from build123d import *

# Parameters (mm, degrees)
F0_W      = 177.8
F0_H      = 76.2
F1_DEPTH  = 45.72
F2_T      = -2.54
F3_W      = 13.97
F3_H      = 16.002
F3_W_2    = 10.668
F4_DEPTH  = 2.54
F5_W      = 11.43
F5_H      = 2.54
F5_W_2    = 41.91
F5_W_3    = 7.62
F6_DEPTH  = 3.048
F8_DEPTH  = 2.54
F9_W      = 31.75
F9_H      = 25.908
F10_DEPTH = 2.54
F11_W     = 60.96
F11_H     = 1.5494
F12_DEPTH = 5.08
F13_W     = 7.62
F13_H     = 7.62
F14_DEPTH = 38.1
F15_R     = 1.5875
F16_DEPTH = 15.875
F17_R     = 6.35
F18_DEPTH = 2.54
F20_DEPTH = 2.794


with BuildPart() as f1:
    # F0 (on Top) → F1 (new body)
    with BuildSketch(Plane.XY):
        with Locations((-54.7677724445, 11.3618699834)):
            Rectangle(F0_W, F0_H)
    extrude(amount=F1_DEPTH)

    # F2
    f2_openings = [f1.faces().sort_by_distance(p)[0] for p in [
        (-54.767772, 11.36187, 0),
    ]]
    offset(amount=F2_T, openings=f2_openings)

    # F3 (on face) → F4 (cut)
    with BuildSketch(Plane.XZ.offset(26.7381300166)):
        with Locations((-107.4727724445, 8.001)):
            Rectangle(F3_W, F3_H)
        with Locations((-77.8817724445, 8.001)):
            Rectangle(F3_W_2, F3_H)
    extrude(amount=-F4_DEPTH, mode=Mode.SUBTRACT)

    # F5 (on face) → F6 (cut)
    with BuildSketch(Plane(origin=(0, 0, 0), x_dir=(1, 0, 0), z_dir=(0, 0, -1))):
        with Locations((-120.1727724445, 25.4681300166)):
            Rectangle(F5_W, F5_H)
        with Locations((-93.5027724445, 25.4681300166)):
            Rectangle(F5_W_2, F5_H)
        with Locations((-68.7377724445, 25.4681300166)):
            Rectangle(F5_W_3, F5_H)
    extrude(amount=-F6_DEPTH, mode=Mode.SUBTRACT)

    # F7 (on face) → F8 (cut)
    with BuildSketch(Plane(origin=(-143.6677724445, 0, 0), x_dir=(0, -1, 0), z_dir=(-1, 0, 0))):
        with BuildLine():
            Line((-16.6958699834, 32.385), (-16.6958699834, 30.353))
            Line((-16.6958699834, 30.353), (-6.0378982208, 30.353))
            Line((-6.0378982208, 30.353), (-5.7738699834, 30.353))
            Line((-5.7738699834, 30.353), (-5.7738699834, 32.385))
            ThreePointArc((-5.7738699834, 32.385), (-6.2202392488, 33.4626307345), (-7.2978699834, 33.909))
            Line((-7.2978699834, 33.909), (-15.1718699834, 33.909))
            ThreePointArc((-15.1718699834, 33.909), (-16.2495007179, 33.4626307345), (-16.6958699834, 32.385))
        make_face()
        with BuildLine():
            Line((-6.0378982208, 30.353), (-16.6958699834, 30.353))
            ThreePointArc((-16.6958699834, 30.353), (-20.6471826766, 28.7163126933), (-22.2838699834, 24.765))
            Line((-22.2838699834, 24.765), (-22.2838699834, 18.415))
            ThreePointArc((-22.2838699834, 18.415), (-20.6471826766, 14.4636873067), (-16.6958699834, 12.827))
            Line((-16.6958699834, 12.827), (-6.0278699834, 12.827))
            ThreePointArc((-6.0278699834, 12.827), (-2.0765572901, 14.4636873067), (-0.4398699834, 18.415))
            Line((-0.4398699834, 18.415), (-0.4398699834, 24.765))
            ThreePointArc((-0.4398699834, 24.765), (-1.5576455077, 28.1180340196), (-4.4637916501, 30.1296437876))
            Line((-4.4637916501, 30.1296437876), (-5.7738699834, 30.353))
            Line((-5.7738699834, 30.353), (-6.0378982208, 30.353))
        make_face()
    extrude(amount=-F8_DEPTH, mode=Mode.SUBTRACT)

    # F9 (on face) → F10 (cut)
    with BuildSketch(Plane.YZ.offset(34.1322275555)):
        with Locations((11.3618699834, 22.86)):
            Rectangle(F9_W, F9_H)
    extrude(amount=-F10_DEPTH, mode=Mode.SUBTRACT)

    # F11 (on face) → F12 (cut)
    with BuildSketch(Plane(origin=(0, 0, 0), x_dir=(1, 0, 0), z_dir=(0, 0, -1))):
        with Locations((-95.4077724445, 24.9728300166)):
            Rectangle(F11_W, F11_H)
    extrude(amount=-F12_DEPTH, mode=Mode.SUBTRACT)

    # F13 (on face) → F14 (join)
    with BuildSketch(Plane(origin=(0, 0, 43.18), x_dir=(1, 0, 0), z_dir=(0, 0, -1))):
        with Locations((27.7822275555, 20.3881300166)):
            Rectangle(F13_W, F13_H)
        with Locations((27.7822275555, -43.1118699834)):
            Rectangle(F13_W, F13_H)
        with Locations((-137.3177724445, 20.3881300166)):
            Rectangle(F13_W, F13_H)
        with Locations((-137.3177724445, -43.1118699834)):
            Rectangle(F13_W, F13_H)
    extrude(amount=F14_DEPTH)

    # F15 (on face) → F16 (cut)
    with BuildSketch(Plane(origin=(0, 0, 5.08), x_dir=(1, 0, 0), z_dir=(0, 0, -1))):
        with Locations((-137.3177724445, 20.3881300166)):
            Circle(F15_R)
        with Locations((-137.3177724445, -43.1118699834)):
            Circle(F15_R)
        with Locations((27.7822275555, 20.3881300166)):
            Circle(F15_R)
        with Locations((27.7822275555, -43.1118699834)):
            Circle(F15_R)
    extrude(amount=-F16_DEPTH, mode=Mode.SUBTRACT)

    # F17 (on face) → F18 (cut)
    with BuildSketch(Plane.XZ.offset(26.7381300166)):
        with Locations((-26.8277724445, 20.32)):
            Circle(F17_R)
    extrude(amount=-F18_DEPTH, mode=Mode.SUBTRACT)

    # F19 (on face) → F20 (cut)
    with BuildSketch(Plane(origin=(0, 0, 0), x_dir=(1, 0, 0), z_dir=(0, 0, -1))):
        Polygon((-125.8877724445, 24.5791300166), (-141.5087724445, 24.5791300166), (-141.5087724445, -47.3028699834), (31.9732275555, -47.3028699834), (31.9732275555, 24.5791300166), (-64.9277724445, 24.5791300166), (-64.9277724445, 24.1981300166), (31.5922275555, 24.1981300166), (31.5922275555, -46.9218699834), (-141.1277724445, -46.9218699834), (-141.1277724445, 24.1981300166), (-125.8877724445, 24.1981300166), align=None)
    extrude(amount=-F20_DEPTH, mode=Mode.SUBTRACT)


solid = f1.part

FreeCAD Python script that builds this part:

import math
import FreeCAD as App
import Part
import Sketcher
Q = App.Units.Quantity


def faces_at(feature, points):
    """Names of the faces that lie closest to the given points."""
    faces = feature.Shape.Faces
    near = lambda p: min(range(len(faces)), key=lambda i: faces[i].distToShape(Part.Vertex(*p))[0])
    return sorted({f"Face{near(p) + 1}" for p in points})

doc = App.newDocument("Part")
params = doc.addObject("Spreadsheet::Sheet", "Params")
for row, (alias, value) in enumerate([
    ("sketch1_width", "7 in"),
    ("sketch1_height", "3 in"),
    ("pad1_length", "1.8 in"),
    ("thickness_wall", "0.1 in"),
    ("sketch2_width", "0.55 in"),
    ("sketch2_width2", "0.42 in"),
    ("sketch2_height", "0.63 in"),
    ("pocket1_length", "0.1 in"),
    ("sketch3_width", "2.4 in"),
    ("sketch3_height", "0.1 in"),
    ("pocket2_length", "0.12 in"),
    ("sketch4_radius", "0.22 in"),
    ("sketch4_radius2", "0.06 in"),
    ("sketch4_width", "0.42 in"),
    ("sketch4_width2", "0.31 in"),
    ("sketch4_height", "0.08 in"),
    ("pocket3_length", "0.1 in"),
    ("sketch5_width", "1.25 in"),
    ("sketch5_height", "1.02 in"),
    ("pocket4_length", "0.1 in"),
    ("sketch6_width", "2.4 in"),
    ("sketch6_height", "0.061 in"),
    ("pocket5_length", "0.2 in"),
    ("sketch7_width", "0.3 in"),
    ("pad2_length", "1.5 in"),
    ("sketch8_diameter", "0.125 in"),
    ("pocket6_length", "0.625 in"),
    ("sketch9_diameter", "0.5 in"),
    ("pocket7_length", "0.1 in"),
    ("sketch10_width", "3.8 in"),
    ("sketch10_width2", "6.8 in"),
    ("sketch10_width3", "0.6 in"),
    ("sketch10_height", "2.8 in"),
    ("sketch10_width4", "6.83 in"),
    ("pocket8_length", "0.11 in"),
], start=1):
    params.set(f"A{row}", alias)
    params.set(f"B{row}", "=" + value)
    params.setAlias(f"B{row}", alias)

body = doc.addObject("PartDesign::Body", "Body")

# Sketch on XY plane
sketch1 = body.newObject("Sketcher::SketchObject", "Sketch")
sketch1.AttachmentSupport = (doc.getObject("XY_Plane"), [""])
sketch1.MapMode = "FlatFace"
sketch1.addGeometry([
    Part.LineSegment(App.Vector(-143.667772, 49.46187, 0), App.Vector(-143.667772, -26.73813, 0)),
    Part.LineSegment(App.Vector(-143.667772, -26.73813, 0), App.Vector(34.132228, -26.73813, 0)),
    Part.LineSegment(App.Vector(34.132228, -26.73813, 0), App.Vector(34.132228, 49.46187, 0)),
    Part.LineSegment(App.Vector(34.132228, 49.46187, 0), App.Vector(-143.667772, 49.46187, 0)),
], False)
sketch1.addConstraint([
    Sketcher.Constraint("Coincident", 0, 2, 1, 1),
    Sketcher.Constraint("Coincident", 1, 2, 2, 1),
    Sketcher.Constraint("Coincident", 2, 2, 3, 1),
    Sketcher.Constraint("Coincident", 3, 2, 0, 1),
    Sketcher.Constraint("Vertical", 0),
    Sketcher.Constraint("Horizontal", 1),
    Sketcher.Constraint("Vertical", 2),
    Sketcher.Constraint("Horizontal", 3),
    Sketcher.Constraint("DistanceX", 1, 1, 1, 2, Q("7 in")),
    Sketcher.Constraint("DistanceY", 0, 2, 0, 1, Q("3 in")),
    Sketcher.Constraint("DistanceY", 0, 2, -1, 1, Q("26.73813 mm")),
    Sketcher.Constraint("DistanceX", 0, 2, -1, 1, Q("143.667772 mm")),
])
sketch1.setExpression("Constraints[8]", "Params.sketch1_width")
sketch1.setExpression("Constraints[9]", "Params.sketch1_height")
pad1 = body.newObject("PartDesign::Pad", "Pad")
pad1.Profile = sketch1
pad1.setExpression("Length", "Params.pad1_length")
doc.recompute()

thickness = body.newObject("PartDesign::Thickness", "Thickness")
thickness.Base = (pad1, faces_at(pad1, [(-54.768, 11.362, 0)]))
thickness.setExpression("Value", "Params.thickness_wall")
thickness.Reversed = True
thickness.Join = "Arc"

# Sketch on XZ plane
sketch2 = body.newObject("Sketcher::SketchObject", "Sketch001")
sketch2.AttachmentSupport = (doc.getObject("XZ_Plane"), [""])
sketch2.MapMode = "FlatFace"
sketch2.AttachmentOffset = App.Placement(App.Vector(0, 0, 26.73813), App.Rotation())
sketch2.addGeometry([
    Part.LineSegment(App.Vector(-114.457772, 16.002, 0), App.Vector(-114.457772, 0, 0)),  # 0
    Part.LineSegment(App.Vector(-114.457772, 0, 0), App.Vector(-100.487772, 0, 0)),  # 1
    Part.LineSegment(App.Vector(-100.487772, 0, 0), App.Vector(-100.487772, 16.002, 0)),  # 2
    Part.LineSegment(App.Vector(-100.487772, 16.002, 0), App.Vector(-114.457772, 16.002, 0)),  # 3
    Part.LineSegment(App.Vector(-83.215772, 16.002, 0), App.Vector(-83.215772, 0, 0)),  # 4
    Part.LineSegment(App.Vector(-83.215772, 0, 0), App.Vector(-72.547772, 0, 0)),  # 5
    Part.LineSegment(App.Vector(-72.547772, 0, 0), App.Vector(-72.547772, 16.002, 0)),  # 6
    Part.LineSegment(App.Vector(-72.547772, 16.002, 0), App.Vector(-83.215772, 16.002, 0)),  # 7
], False)
sketch2.addConstraint([
    Sketcher.Constraint("Coincident", 0, 2, 1, 1),
    Sketcher.Constraint("Coincident", 1, 2, 2, 1),
    Sketcher.Constraint("Coincident", 2, 2, 3, 1),
    Sketcher.Constraint("Coincident", 3, 2, 0, 1),
    Sketcher.Constraint("Coincident", 4, 2, 5, 1),
    Sketcher.Constraint("Coincident", 5, 2, 6, 1),
    Sketcher.Constraint("Coincident", 6, 2, 7, 1),
    Sketcher.Constraint("Coincident", 7, 2, 4, 1),
    Sketcher.Constraint("Vertical", 0),
    Sketcher.Constraint("Horizontal", 1),
    Sketcher.Constraint("Vertical", 2),
    Sketcher.Constraint("Horizontal", 3),
    Sketcher.Constraint("Vertical", 4),
    Sketcher.Constraint("Horizontal", 5),
    Sketcher.Constraint("Vertical", 6),
    Sketcher.Constraint("Horizontal", 7),
    Sketcher.Constraint("PointOnObject", 0, 2, -1),
    Sketcher.Constraint("PointOnObject", 4, 2, -1),
    Sketcher.Constraint("Horizontal", 3, 2, 6, 2),
    Sketcher.Constraint("DistanceX", 1, 1, 1, 2, Q("0.55 in")),
    Sketcher.Constraint("DistanceX", 5, 1, 5, 2, Q("0.42 in")),
    Sketcher.Constraint("DistanceY", 0, 2, 0, 1, Q("0.63 in")),
    Sketcher.Constraint("DistanceX", 1, 2, 5, 2, Q("1.1 in")),
    Sketcher.Constraint("DistanceX", 0, 2, -1, 1, Q("114.457772 mm")),
])
sketch2.setExpression("Constraints[19]", "Params.sketch2_width")
sketch2.setExpression("Constraints[20]", "Params.sketch2_width2")
sketch2.setExpression("Constraints[21]", "Params.sketch2_height")
pocket1 = body.newObject("PartDesign::Pocket", "Pocket")
pocket1.Profile = sketch2
pocket1.setExpression("Length", "Params.pocket1_length")

# Sketch on XY plane
sketch3 = body.newObject("Sketcher::SketchObject", "Sketch002")
sketch3.AttachmentSupport = (doc.getObject("XY_Plane"), [""])
sketch3.MapMode = "FlatFace"
sketch3.addGeometry([
    Part.LineSegment(App.Vector(-125.887772, -26.73813, 0), App.Vector(-125.887772, -24.19813, 0)),
    Part.LineSegment(App.Vector(-125.887772, -24.19813, 0), App.Vector(-64.927772, -24.19813, 0)),
    Part.LineSegment(App.Vector(-64.927772, -24.19813, 0), App.Vector(-64.927772, -26.73813, 0)),
    Part.LineSegment(App.Vector(-64.927772, -26.73813, 0), App.Vector(-125.887772, -26.73813, 0)),
], False)
sketch3.addConstraint([
    Sketcher.Constraint("Coincident", 0, 2, 1, 1),
    Sketcher.Constraint("Coincident", 1, 2, 2, 1),
    Sketcher.Constraint("Coincident", 2, 2, 3, 1),
    Sketcher.Constraint("Coincident", 3, 2, 0, 1),
    Sketcher.Constraint("Vertical", 0),
    Sketcher.Constraint("Horizontal", 1),
    Sketcher.Constraint("Vertical", 2),
    Sketcher.Constraint("Horizontal", 3),
    Sketcher.Constraint("DistanceX", 1, 1, 1, 2, Q("2.4 in")),
    Sketcher.Constraint("DistanceY", 0, 1, 0, 2, Q("0.1 in")),
    Sketcher.Constraint("DistanceY", 0, 2, -1, 1, Q("24.19813 mm")),
    Sketcher.Constraint("DistanceX", 0, 2, -1, 1, Q("125.887772 mm")),
])
sketch3.setExpression("Constraints[8]", "Params.sketch3_width")
sketch3.setExpression("Constraints[9]", "Params.sketch3_height")
pocket2 = body.newObject("PartDesign::Pocket", "Pocket001")
pocket2.Profile = sketch3
pocket2.setExpression("Length", "Params.pocket2_length")
pocket2.Reversed = True

# Sketch on YZ plane
sketch4 = body.newObject("Sketcher::SketchObject", "Sketch003")
sketch4.AttachmentSupport = (doc.getObject("YZ_Plane"), [""])
sketch4.MapMode = "FlatFace"
sketch4.AttachmentOffset = App.Placement(App.Vector(0, 0, -143.667772), App.Rotation())
sketch4.addGeometry([
    Part.LineSegment(App.Vector(16.69587, 32.385, 0), App.Vector(16.69587, 30.353, 0)),  # 0
    Part.ArcOfCircle(Part.Circle(App.Vector(16.69587, 24.765, 0), App.Vector(0, 0, 1), 5.588), math.radians(0), math.radians(90)),  # 1
    Part.LineSegment(App.Vector(22.28387, 24.765, 0), App.Vector(22.28387, 18.415, 0)),  # 2
    Part.ArcOfCircle(Part.Circle(App.Vector(16.69587, 18.415, 0), App.Vector(0, 0, 1), 5.588), math.radians(-90), math.radians(0)),  # 3
    Part.LineSegment(App.Vector(16.69587, 12.827, 0), App.Vector(6.02787, 12.827, 0)),  # 4
    Part.ArcOfCircle(Part.Circle(App.Vector(6.02787, 18.415, 0), App.Vector(0, 0, 1), 5.588), math.radians(180), math.radians(270)),  # 5
    Part.LineSegment(App.Vector(0.43987, 18.415, 0), App.Vector(0.43987, 24.765, 0)),  # 6
    Part.ArcOfCircle(Part.Circle(App.Vector(6.02787, 24.765, 0), App.Vector(0, 0, 1), 5.588), math.radians(106.254206), math.radians(180)),  # 7
    Part.LineSegment(App.Vector(4.463792, 30.129644, 0), App.Vector(5.77387, 30.353, 0)),  # 8
    Part.LineSegment(App.Vector(5.77387, 30.353, 0), App.Vector(5.77387, 32.385, 0)),  # 9
    Part.ArcOfCircle(Part.Circle(App.Vector(7.29787, 32.385, 0), App.Vector(0, 0, 1), 1.524), math.radians(90), math.radians(180)),  # 10
    Part.LineSegment(App.Vector(7.29787, 33.909, 0), App.Vector(15.17187, 33.909, 0)),  # 11
    Part.ArcOfCircle(Part.Circle(App.Vector(15.17187, 32.385, 0), App.Vector(0, 0, 1), 1.524), math.radians(0), math.radians(90)),  # 12
], False)
sketch4.addConstraint([
    Sketcher.Constraint("Coincident", 0, 2, 1, 2),
    Sketcher.Constraint("Tangent", 1, 1, 2, 1),
    Sketcher.Constraint("Tangent", 2, 2, 3, 2),
    Sketcher.Constraint("Tangent", 3, 1, 4, 1),
    Sketcher.Constraint("Tangent", 4, 2, 5, 2),
    Sketcher.Constraint("Tangent", 5, 1, 6, 1),
    Sketcher.Constraint("Tangent", 6, 2, 7, 2),
    Sketcher.Constraint("Coincident", 7, 1, 8, 1),
    Sketcher.Constraint("Coincident", 8, 2, 9, 1),
    Sketcher.Constraint("Tangent", 9, 2, 10, 2),
    Sketcher.Constraint("Tangent", 10, 1, 11, 1),
    Sketcher.Constraint("Tangent", 11, 2, 12, 2),
    Sketcher.Constraint("Tangent", 12, 1, 0, 1),
    Sketcher.Constraint("Vertical", 0),
    Sketcher.Constraint("Vertical", 2),
    Sketcher.Constraint("Horizontal", 4),
    Sketcher.Constraint("Vertical", 6),
    Sketcher.Constraint("Vertical", 9),
    Sketcher.Constraint("Horizontal", 11),
    Sketcher.Constraint("Equal", 1, 3),
    Sketcher.Constraint("Equal", 3, 5),
    Sketcher.Constraint("Equal", 5, 7),
    Sketcher.Constraint("Equal", 10, 12),
    Sketcher.Constraint("Horizontal", 1, 3, 7, 3),
    Sketcher.Constraint("Horizontal", 0, 2, 8, 2),
    Sketcher.Constraint("Vertical", 3, 3, 0, 2),
    Sketcher.Constraint("Radius", 1, Q("0.22 in")),
    Sketcher.Constraint("Radius", 10, Q("0.06 in")),
    Sketcher.Constraint("DistanceX", 4, 2, 4, 1, Q("0.42 in")),
    Sketcher.Constraint("DistanceX", 11, 1, 11, 2, Q("0.31 in")),
    Sketcher.Constraint("DistanceY", 0, 2, 0, 1, Q("0.08 in")),
    Sketcher.Constraint("DistanceY", 2, 2, 2, 1, Q("0.25 in")),
    Sketcher.Constraint("DistanceY", -1, 1, 1, 3, Q("0.975 in")),
    Sketcher.Constraint("DistanceX", -1, 1, 1, 3, Q("16.69587 mm")),
    Sketcher.Constraint("DistanceX", -1, 1, 7, 1, Q("4.463792 mm")),
])
sketch4.setExpression("Constraints[26]", "Params.sketch4_radius")
sketch4.setExpression("Constraints[27]", "Params.sketch4_radius2")
sketch4.setExpression("Constraints[28]", "Params.sketch4_width")
sketch4.setExpression("Constraints[29]", "Params.sketch4_width2")
sketch4.setExpression("Constraints[30]", "Params.sketch4_height")
pocket3 = body.newObject("PartDesign::Pocket", "Pocket002")
pocket3.Profile = sketch4
pocket3.setExpression("Length", "Params.pocket3_length")
pocket3.Reversed = True

# Sketch on YZ plane
sketch5 = body.newObject("Sketcher::SketchObject", "Sketch004")
sketch5.AttachmentSupport = (doc.getObject("YZ_Plane"), [""])
sketch5.MapMode = "FlatFace"
sketch5.AttachmentOffset = App.Placement(App.Vector(0, 0, 34.132228), App.Rotation())
sketch5.addGeometry([
    Part.LineSegment(App.Vector(-4.51313, 35.814, 0), App.Vector(-4.51313, 9.906, 0)),
    Part.LineSegment(App.Vector(-4.51313, 9.906, 0), App.Vector(27.23687, 9.906, 0)),
    Part.LineSegment(App.Vector(27.23687, 9.906, 0), App.Vector(27.23687, 35.814, 0)),
    Part.LineSegment(App.Vector(27.23687, 35.814, 0), App.Vector(-4.51313, 35.814, 0)),
], False)
sketch5.addConstraint([
    Sketcher.Constraint("Coincident", 0, 2, 1, 1),
    Sketcher.Constraint("Coincident", 1, 2, 2, 1),
    Sketcher.Constraint("Coincident", 2, 2, 3, 1),
    Sketcher.Constraint("Coincident", 3, 2, 0, 1),
    Sketcher.Constraint("Vertical", 0),
    Sketcher.Constraint("Horizontal", 1),
    Sketcher.Constraint("Vertical", 2),
    Sketcher.Constraint("Horizontal", 3),
    Sketcher.Constraint("DistanceX", 1, 1, 1, 2, Q("1.25 in")),
    Sketcher.Constraint("DistanceY", 0, 2, 0, 1, Q("1.02 in")),
    Sketcher.Constraint("DistanceY", -1, 1, 0, 2, Q("0.39 in")),
    Sketcher.Constraint("DistanceX", 0, 2, -1, 1, Q("4.51313 mm")),
])
sketch5.setExpression("Constraints[8]", "Params.sketch5_width")
sketch5.setExpression("Constraints[9]", "Params.sketch5_height")
pocket4 = body.newObject("PartDesign::Pocket", "Pocket003")
pocket4.Profile = sketch5
pocket4.setExpression("Length", "Params.pocket4_length")

# Sketch on XY plane
sketch6 = body.newObject("Sketcher::SketchObject", "Sketch005")
sketch6.AttachmentSupport = (doc.getObject("XY_Plane"), [""])
sketch6.MapMode = "FlatFace"
sketch6.addGeometry([
    Part.LineSegment(App.Vector(-125.887772, -25.74753, 0), App.Vector(-125.887772, -24.19813, 0)),
    Part.LineSegment(App.Vector(-125.887772, -24.19813, 0), App.Vector(-64.927772, -24.19813, 0)),
    Part.LineSegment(App.Vector(-64.927772, -24.19813, 0), App.Vector(-64.927772, -25.74753, 0)),
    Part.LineSegment(App.Vector(-64.927772, -25.74753, 0), App.Vector(-125.887772, -25.74753, 0)),
], False)
sketch6.addConstraint([
    Sketcher.Constraint("Coincident", 0, 2, 1, 1),
    Sketcher.Constraint("Coincident", 1, 2, 2, 1),
    Sketcher.Constraint("Coincident", 2, 2, 3, 1),
    Sketcher.Constraint("Coincident", 3, 2, 0, 1),
    Sketcher.Constraint("Vertical", 0),
    Sketcher.Constraint("Horizontal", 1),
    Sketcher.Constraint("Vertical", 2),
    Sketcher.Constraint("Horizontal", 3),
    Sketcher.Constraint("DistanceX", 1, 1, 1, 2, Q("2.4 in")),
    Sketcher.Constraint("DistanceY", 0, 1, 0, 2, Q("0.061 in")),
    Sketcher.Constraint("DistanceY", 0, 2, -1, 1, Q("24.19813 mm")),
    Sketcher.Constraint("DistanceX", 0, 2, -1, 1, Q("125.887772 mm")),
])
sketch6.setExpression("Constraints[8]", "Params.sketch6_width")
sketch6.setExpression("Constraints[9]", "Params.sketch6_height")
pocket5 = body.newObject("PartDesign::Pocket", "Pocket004")
pocket5.Profile = sketch6
pocket5.setExpression("Length", "Params.pocket5_length")
pocket5.Reversed = True

# Sketch on XY plane
sketch7 = body.newObject("Sketcher::SketchObject", "Sketch006")
sketch7.AttachmentSupport = (doc.getObject("XY_Plane"), [""])
sketch7.MapMode = "FlatFace"
sketch7.AttachmentOffset = App.Placement(App.Vector(0, 0, 1.7 * 25.4), App.Rotation())
sketch7.addGeometry([
    Part.LineSegment(App.Vector(23.972228, -24.19813, 0), App.Vector(23.972228, -16.57813, 0)),  # 0
    Part.LineSegment(App.Vector(23.972228, -16.57813, 0), App.Vector(31.592228, -16.57813, 0)),  # 1
    Part.LineSegment(App.Vector(31.592228, -16.57813, 0), App.Vector(31.592228, -24.19813, 0)),  # 2
    Part.LineSegment(App.Vector(31.592228, -24.19813, 0), App.Vector(23.972228, -24.19813, 0)),  # 3
    Part.LineSegment(App.Vector(23.972228, 39.30187, 0), App.Vector(23.972228, 46.92187, 0)),  # 4
    Part.LineSegment(App.Vector(23.972228, 46.92187, 0), App.Vector(31.592228, 46.92187, 0)),  # 5
    Part.LineSegment(App.Vector(31.592228, 46.92187, 0), App.Vector(31.592228, 39.30187, 0)),  # 6
    Part.LineSegment(App.Vector(31.592228, 39.30187, 0), App.Vector(23.972228, 39.30187, 0)),  # 7
    Part.LineSegment(App.Vector(-141.127772, -24.19813, 0), App.Vector(-141.127772, -16.57813, 0)),  # 8
    Part.LineSegment(App.Vector(-141.127772, -16.57813, 0), App.Vector(-133.507772, -16.57813, 0)),  # 9
    Part.LineSegment(App.Vector(-133.507772, -16.57813, 0), App.Vector(-133.507772, -24.19813, 0)),  # 10
    Part.LineSegment(App.Vector(-133.507772, -24.19813, 0), App.Vector(-141.127772, -24.19813, 0)),  # 11
    Part.LineSegment(App.Vector(-141.127772, 39.30187, 0), App.Vector(-141.127772, 46.92187, 0)),  # 12
    Part.LineSegment(App.Vector(-141.127772, 46.92187, 0), App.Vector(-133.507772, 46.92187, 0)),  # 13
    Part.LineSegment(App.Vector(-133.507772, 46.92187, 0), App.Vector(-133.507772, 39.30187, 0)),  # 14
    Part.LineSegment(App.Vector(-133.507772, 39.30187, 0), App.Vector(-141.127772, 39.30187, 0)),  # 15
], False)
sketch7.addConstraint([
    Sketcher.Constraint("Coincident", 0, 2, 1, 1),
    Sketcher.Constraint("Coincident", 1, 2, 2, 1),
    Sketcher.Constraint("Coincident", 2, 2, 3, 1),
    Sketcher.Constraint("Coincident", 3, 2, 0, 1),
    Sketcher.Constraint("Coincident", 4, 2, 5, 1),
    Sketcher.Constraint("Coincident", 5, 2, 6, 1),
    Sketcher.Constraint("Coincident", 6, 2, 7, 1),
    Sketcher.Constraint("Coincident", 7, 2, 4, 1),
    Sketcher.Constraint("Coincident", 8, 2, 9, 1),
    Sketcher.Constraint("Coincident", 9, 2, 10, 1),
    Sketcher.Constraint("Coincident", 10, 2, 11, 1),
    Sketcher.Constraint("Coincident", 11, 2, 8, 1),
    Sketcher.Constraint("Coincident", 12, 2, 13, 1),
    Sketcher.Constraint("Coincident", 13, 2, 14, 1),
    Sketcher.Constraint("Coincident", 14, 2, 15, 1),
    Sketcher.Constraint("Coincident", 15, 2, 12, 1),
    Sketcher.Constraint("Vertical", 0),
    Sketcher.Constraint("Horizontal", 1),
    Sketcher.Constraint("Vertical", 2),
    Sketcher.Constraint("Horizontal", 3),
    Sketcher.Constraint("Vertical", 4),
    Sketcher.Constraint("Horizontal", 5),
    Sketcher.Constraint("Vertical", 6),
    Sketcher.Constraint("Horizontal", 7),
    Sketcher.Constraint("Vertical", 8),
    Sketcher.Constraint("Horizontal", 9),
    Sketcher.Constraint("Vertical", 10),
    Sketcher.Constraint("Horizontal", 11),
    Sketcher.Constraint("Vertical", 12),
    Sketcher.Constraint("Horizontal", 13),
    Sketcher.Constraint("Vertical", 14),
    Sketcher.Constraint("Horizontal", 15),
    Sketcher.Constraint("Horizontal", 1, 2, 8, 2),
    Sketcher.Constraint("Horizontal", 3, 2, 10, 2),
    Sketcher.Constraint("Horizontal", 5, 2, 12, 2),
    Sketcher.Constraint("Horizontal", 7, 2, 14, 2),
    Sketcher.Constraint("Vertical", 3, 2, 4, 2),
    Sketcher.Constraint("Vertical", 2, 2, 5, 2),
    Sketcher.Constraint("Vertical", 11, 2, 12, 2),
    Sketcher.Constraint("Vertical", 10, 2, 13, 2),
    Sketcher.Constraint("Equal", 7, 9),
    Sketcher.Constraint("Equal", 15, 0),
    Sketcher.Constraint("Equal", 2, 4),
    Sketcher.Constraint("DistanceX", 1, 1, 1, 2, Q("0.3 in")),
    Sketcher.Constraint("DistanceY", 0, 2, 4, 2, Q("2.5 in")),
    Sketcher.Constraint("DistanceX", 8, 2, 0, 2, Q("6.5 in")),
    Sketcher.Constraint("DistanceY", 0, 2, -1, 1, Q("16.57813 mm")),
    Sketcher.Constraint("DistanceX", -1, 1, 0, 2, Q("23.972228 mm")),
])
sketch7.setExpression("Constraints[43]", "Params.sketch7_width")
pad2 = body.newObject("PartDesign::Pad", "Pad001")
pad2.Profile = sketch7
pad2.setExpression("Length", "Params.pad2_length")
pad2.Reversed = True

# Sketch on XY plane
sketch8 = body.newObject("Sketcher::SketchObject", "Sketch007")
sketch8.AttachmentSupport = (doc.getObject("XY_Plane"), [""])
sketch8.MapMode = "FlatFace"
sketch8.AttachmentOffset = App.Placement(App.Vector(0, 0, 0.2 * 25.4), App.Rotation())
sketch8.addGeometry([
    Part.Circle(App.Vector(-137.317772, -20.38813, 0), App.Vector(0, 0, 1), 1.5875),
    Part.Circle(App.Vector(-137.317772, 43.11187, 0), App.Vector(0, 0, 1), 1.5875),
    Part.Circle(App.Vector(27.782228, -20.38813, 0), App.Vector(0, 0, 1), 1.5875),
    Part.Circle(App.Vector(27.782228, 43.11187, 0), App.Vector(0, 0, 1), 1.5875),
], False)
sketch8.addConstraint([
    Sketcher.Constraint("Equal", 0, 1),
    Sketcher.Constraint("Equal", 1, 2),
    Sketcher.Constraint("Equal", 2, 3),
    Sketcher.Constraint("Horizontal", 0, 3, 2, 3),
    Sketcher.Constraint("Horizontal", 1, 3, 3, 3),
    Sketcher.Constraint("Vertical", 0, 3, 1, 3),
    Sketcher.Constraint("Vertical", 2, 3, 3, 3),
    Sketcher.Constraint("Diameter", 0, Q("0.125 in")),
    Sketcher.Constraint("DistanceY", 0, 3, 1, 3, Q("2.5 in")),
    Sketcher.Constraint("DistanceX", 0, 3, 2, 3, Q("6.5 in")),
    Sketcher.Constraint("DistanceY", 0, 3, -1, 1, Q("20.38813 mm")),
    Sketcher.Constraint("DistanceX", 0, 3, -1, 1, Q("137.317772 mm")),
])
sketch8.setExpression("Constraints[7]", "Params.sketch8_diameter")
pocket6 = body.newObject("PartDesign::Pocket", "Pocket005")
pocket6.Profile = sketch8
pocket6.setExpression("Length", "Params.pocket6_length")
pocket6.Reversed = True

# Sketch on XZ plane
sketch9 = body.newObject("Sketcher::SketchObject", "Sketch008")
sketch9.AttachmentSupport = (doc.getObject("XZ_Plane"), [""])
sketch9.MapMode = "FlatFace"
sketch9.AttachmentOffset = App.Placement(App.Vector(0, 0, 26.73813), App.Rotation())
sketch9.addGeometry(Part.Circle(App.Vector(-26.827772, 20.32, 0), App.Vector(0, 0, 1), 6.35), False)
sketch9.addConstraint([
    Sketcher.Constraint("Diameter", 0, Q("0.5 in")),
    Sketcher.Constraint("DistanceY", -1, 1, 0, 3, Q("0.8 in")),
    Sketcher.Constraint("DistanceX", 0, 3, -1, 1, Q("26.827772 mm")),
])
sketch9.setExpression("Constraints[0]", "Params.sketch9_diameter")
pocket7 = body.newObject("PartDesign::Pocket", "Pocket006")
pocket7.Profile = sketch9
pocket7.setExpression("Length", "Params.pocket7_length")

# Sketch on XY plane
sketch10 = body.newObject("Sketcher::SketchObject", "Sketch009")
sketch10.AttachmentSupport = (doc.getObject("XY_Plane"), [""])
sketch10.MapMode = "FlatFace"
sketch10.addGeometry([
    Part.LineSegment(App.Vector(-125.887772, -24.57913, 0), App.Vector(-141.508772, -24.57913, 0)),  # 0
    Part.LineSegment(App.Vector(-141.508772, -24.57913, 0), App.Vector(-141.508772, 47.30287, 0)),  # 1
    Part.LineSegment(App.Vector(-141.508772, 47.30287, 0), App.Vector(31.973228, 47.30287, 0)),  # 2
    Part.LineSegment(App.Vector(31.973228, 47.30287, 0), App.Vector(31.973228, -24.57913, 0)),  # 3
    Part.LineSegment(App.Vector(31.973228, -24.57913, 0), App.Vector(-64.927772, -24.57913, 0)),  # 4
    Part.LineSegment(App.Vector(-64.927772, -24.57913, 0), App.Vector(-64.927772, -24.19813, 0)),  # 5
    Part.LineSegment(App.Vector(-64.927772, -24.19813, 0), App.Vector(31.592228, -24.19813, 0)),  # 6
    Part.LineSegment(App.Vector(31.592228, -24.19813, 0), App.Vector(31.592228, 46.92187, 0)),  # 7
    Part.LineSegment(App.Vector(31.592228, 46.92187, 0), App.Vector(-141.127772, 46.92187, 0)),  # 8
    Part.LineSegment(App.Vector(-141.127772, 46.92187, 0), App.Vector(-141.127772, -24.19813, 0)),  # 9
    Part.LineSegment(App.Vector(-141.127772, -24.19813, 0), App.Vector(-125.887772, -24.19813, 0)),  # 10
    Part.LineSegment(App.Vector(-125.887772, -24.19813, 0), App.Vector(-125.887772, -24.57913, 0)),  # 11
], False)
sketch10.addConstraint([
    Sketcher.Constraint("Coincident", 0, 2, 1, 1),
    Sketcher.Constraint("Coincident", 1, 2, 2, 1),
    Sketcher.Constraint("Coincident", 2, 2, 3, 1),
    Sketcher.Constraint("Coincident", 3, 2, 4, 1),
    Sketcher.Constraint("Coincident", 4, 2, 5, 1),
    Sketcher.Constraint("Coincident", 5, 2, 6, 1),
    Sketcher.Constraint("Coincident", 6, 2, 7, 1),
    Sketcher.Constraint("Coincident", 7, 2, 8, 1),
    Sketcher.Constraint("Coincident", 8, 2, 9, 1),
    Sketcher.Constraint("Coincident", 9, 2, 10, 1),
    Sketcher.Constraint("Coincident", 10, 2, 11, 1),
    Sketcher.Constraint("Coincident", 11, 2, 0, 1),
    Sketcher.Constraint("Horizontal", 0),
    Sketcher.Constraint("Vertical", 1),
    Sketcher.Constraint("Horizontal", 2),
    Sketcher.Constraint("Vertical", 3),
    Sketcher.Constraint("Horizontal", 4),
    Sketcher.Constraint("Vertical", 5),
    Sketcher.Constraint("Horizontal", 6),
    Sketcher.Constraint("Vertical", 7),
    Sketcher.Constraint("Horizontal", 8),
    Sketcher.Constraint("Vertical", 9),
    Sketcher.Constraint("Horizontal", 10),
    Sketcher.Constraint("Vertical", 11),
    Sketcher.Constraint("Horizontal", 0, 2, 3, 2),
    Sketcher.Constraint("Horizontal", 6, 2, 9, 2),
    Sketcher.Constraint("DistanceX", 6, 1, 6, 2, Q("3.8 in")),
    Sketcher.Constraint("DistanceX", 8, 2, 8, 1, Q("6.8 in")),
    Sketcher.Constraint("DistanceX", 10, 1, 10, 2, Q("0.6 in")),
    Sketcher.Constraint("DistanceY", 7, 1, 7, 2, Q("2.8 in")),
    Sketcher.Constraint("DistanceX", 2, 1, 2, 2, Q("6.83 in")),
    Sketcher.Constraint("DistanceY", 1, 1, 1, 2, Q("2.83 in")),
    Sketcher.Constraint("DistanceX", 0, 2, 0, 1, Q("0.615 in")),
    Sketcher.Constraint("DistanceY", 5, 1, 5, 2, Q("0.015 in")),
    Sketcher.Constraint("DistanceY", 0, 2, -1, 1, Q("24.57913 mm")),
    Sketcher.Constraint("DistanceX", 0, 2, -1, 1, Q("141.508772 mm")),
])
sketch10.setExpression("Constraints[26]", "Params.sketch10_width")
sketch10.setExpression("Constraints[27]", "Params.sketch10_width2")
sketch10.setExpression("Constraints[28]", "Params.sketch10_width3")
sketch10.setExpression("Constraints[29]", "Params.sketch10_height")
sketch10.setExpression("Constraints[30]", "Params.sketch10_width4")
pocket8 = body.newObject("PartDesign::Pocket", "Pocket007")
pocket8.Profile = sketch10
pocket8.setExpression("Length", "Params.pocket8_length")
pocket8.Reversed = True

doc.recompute()
